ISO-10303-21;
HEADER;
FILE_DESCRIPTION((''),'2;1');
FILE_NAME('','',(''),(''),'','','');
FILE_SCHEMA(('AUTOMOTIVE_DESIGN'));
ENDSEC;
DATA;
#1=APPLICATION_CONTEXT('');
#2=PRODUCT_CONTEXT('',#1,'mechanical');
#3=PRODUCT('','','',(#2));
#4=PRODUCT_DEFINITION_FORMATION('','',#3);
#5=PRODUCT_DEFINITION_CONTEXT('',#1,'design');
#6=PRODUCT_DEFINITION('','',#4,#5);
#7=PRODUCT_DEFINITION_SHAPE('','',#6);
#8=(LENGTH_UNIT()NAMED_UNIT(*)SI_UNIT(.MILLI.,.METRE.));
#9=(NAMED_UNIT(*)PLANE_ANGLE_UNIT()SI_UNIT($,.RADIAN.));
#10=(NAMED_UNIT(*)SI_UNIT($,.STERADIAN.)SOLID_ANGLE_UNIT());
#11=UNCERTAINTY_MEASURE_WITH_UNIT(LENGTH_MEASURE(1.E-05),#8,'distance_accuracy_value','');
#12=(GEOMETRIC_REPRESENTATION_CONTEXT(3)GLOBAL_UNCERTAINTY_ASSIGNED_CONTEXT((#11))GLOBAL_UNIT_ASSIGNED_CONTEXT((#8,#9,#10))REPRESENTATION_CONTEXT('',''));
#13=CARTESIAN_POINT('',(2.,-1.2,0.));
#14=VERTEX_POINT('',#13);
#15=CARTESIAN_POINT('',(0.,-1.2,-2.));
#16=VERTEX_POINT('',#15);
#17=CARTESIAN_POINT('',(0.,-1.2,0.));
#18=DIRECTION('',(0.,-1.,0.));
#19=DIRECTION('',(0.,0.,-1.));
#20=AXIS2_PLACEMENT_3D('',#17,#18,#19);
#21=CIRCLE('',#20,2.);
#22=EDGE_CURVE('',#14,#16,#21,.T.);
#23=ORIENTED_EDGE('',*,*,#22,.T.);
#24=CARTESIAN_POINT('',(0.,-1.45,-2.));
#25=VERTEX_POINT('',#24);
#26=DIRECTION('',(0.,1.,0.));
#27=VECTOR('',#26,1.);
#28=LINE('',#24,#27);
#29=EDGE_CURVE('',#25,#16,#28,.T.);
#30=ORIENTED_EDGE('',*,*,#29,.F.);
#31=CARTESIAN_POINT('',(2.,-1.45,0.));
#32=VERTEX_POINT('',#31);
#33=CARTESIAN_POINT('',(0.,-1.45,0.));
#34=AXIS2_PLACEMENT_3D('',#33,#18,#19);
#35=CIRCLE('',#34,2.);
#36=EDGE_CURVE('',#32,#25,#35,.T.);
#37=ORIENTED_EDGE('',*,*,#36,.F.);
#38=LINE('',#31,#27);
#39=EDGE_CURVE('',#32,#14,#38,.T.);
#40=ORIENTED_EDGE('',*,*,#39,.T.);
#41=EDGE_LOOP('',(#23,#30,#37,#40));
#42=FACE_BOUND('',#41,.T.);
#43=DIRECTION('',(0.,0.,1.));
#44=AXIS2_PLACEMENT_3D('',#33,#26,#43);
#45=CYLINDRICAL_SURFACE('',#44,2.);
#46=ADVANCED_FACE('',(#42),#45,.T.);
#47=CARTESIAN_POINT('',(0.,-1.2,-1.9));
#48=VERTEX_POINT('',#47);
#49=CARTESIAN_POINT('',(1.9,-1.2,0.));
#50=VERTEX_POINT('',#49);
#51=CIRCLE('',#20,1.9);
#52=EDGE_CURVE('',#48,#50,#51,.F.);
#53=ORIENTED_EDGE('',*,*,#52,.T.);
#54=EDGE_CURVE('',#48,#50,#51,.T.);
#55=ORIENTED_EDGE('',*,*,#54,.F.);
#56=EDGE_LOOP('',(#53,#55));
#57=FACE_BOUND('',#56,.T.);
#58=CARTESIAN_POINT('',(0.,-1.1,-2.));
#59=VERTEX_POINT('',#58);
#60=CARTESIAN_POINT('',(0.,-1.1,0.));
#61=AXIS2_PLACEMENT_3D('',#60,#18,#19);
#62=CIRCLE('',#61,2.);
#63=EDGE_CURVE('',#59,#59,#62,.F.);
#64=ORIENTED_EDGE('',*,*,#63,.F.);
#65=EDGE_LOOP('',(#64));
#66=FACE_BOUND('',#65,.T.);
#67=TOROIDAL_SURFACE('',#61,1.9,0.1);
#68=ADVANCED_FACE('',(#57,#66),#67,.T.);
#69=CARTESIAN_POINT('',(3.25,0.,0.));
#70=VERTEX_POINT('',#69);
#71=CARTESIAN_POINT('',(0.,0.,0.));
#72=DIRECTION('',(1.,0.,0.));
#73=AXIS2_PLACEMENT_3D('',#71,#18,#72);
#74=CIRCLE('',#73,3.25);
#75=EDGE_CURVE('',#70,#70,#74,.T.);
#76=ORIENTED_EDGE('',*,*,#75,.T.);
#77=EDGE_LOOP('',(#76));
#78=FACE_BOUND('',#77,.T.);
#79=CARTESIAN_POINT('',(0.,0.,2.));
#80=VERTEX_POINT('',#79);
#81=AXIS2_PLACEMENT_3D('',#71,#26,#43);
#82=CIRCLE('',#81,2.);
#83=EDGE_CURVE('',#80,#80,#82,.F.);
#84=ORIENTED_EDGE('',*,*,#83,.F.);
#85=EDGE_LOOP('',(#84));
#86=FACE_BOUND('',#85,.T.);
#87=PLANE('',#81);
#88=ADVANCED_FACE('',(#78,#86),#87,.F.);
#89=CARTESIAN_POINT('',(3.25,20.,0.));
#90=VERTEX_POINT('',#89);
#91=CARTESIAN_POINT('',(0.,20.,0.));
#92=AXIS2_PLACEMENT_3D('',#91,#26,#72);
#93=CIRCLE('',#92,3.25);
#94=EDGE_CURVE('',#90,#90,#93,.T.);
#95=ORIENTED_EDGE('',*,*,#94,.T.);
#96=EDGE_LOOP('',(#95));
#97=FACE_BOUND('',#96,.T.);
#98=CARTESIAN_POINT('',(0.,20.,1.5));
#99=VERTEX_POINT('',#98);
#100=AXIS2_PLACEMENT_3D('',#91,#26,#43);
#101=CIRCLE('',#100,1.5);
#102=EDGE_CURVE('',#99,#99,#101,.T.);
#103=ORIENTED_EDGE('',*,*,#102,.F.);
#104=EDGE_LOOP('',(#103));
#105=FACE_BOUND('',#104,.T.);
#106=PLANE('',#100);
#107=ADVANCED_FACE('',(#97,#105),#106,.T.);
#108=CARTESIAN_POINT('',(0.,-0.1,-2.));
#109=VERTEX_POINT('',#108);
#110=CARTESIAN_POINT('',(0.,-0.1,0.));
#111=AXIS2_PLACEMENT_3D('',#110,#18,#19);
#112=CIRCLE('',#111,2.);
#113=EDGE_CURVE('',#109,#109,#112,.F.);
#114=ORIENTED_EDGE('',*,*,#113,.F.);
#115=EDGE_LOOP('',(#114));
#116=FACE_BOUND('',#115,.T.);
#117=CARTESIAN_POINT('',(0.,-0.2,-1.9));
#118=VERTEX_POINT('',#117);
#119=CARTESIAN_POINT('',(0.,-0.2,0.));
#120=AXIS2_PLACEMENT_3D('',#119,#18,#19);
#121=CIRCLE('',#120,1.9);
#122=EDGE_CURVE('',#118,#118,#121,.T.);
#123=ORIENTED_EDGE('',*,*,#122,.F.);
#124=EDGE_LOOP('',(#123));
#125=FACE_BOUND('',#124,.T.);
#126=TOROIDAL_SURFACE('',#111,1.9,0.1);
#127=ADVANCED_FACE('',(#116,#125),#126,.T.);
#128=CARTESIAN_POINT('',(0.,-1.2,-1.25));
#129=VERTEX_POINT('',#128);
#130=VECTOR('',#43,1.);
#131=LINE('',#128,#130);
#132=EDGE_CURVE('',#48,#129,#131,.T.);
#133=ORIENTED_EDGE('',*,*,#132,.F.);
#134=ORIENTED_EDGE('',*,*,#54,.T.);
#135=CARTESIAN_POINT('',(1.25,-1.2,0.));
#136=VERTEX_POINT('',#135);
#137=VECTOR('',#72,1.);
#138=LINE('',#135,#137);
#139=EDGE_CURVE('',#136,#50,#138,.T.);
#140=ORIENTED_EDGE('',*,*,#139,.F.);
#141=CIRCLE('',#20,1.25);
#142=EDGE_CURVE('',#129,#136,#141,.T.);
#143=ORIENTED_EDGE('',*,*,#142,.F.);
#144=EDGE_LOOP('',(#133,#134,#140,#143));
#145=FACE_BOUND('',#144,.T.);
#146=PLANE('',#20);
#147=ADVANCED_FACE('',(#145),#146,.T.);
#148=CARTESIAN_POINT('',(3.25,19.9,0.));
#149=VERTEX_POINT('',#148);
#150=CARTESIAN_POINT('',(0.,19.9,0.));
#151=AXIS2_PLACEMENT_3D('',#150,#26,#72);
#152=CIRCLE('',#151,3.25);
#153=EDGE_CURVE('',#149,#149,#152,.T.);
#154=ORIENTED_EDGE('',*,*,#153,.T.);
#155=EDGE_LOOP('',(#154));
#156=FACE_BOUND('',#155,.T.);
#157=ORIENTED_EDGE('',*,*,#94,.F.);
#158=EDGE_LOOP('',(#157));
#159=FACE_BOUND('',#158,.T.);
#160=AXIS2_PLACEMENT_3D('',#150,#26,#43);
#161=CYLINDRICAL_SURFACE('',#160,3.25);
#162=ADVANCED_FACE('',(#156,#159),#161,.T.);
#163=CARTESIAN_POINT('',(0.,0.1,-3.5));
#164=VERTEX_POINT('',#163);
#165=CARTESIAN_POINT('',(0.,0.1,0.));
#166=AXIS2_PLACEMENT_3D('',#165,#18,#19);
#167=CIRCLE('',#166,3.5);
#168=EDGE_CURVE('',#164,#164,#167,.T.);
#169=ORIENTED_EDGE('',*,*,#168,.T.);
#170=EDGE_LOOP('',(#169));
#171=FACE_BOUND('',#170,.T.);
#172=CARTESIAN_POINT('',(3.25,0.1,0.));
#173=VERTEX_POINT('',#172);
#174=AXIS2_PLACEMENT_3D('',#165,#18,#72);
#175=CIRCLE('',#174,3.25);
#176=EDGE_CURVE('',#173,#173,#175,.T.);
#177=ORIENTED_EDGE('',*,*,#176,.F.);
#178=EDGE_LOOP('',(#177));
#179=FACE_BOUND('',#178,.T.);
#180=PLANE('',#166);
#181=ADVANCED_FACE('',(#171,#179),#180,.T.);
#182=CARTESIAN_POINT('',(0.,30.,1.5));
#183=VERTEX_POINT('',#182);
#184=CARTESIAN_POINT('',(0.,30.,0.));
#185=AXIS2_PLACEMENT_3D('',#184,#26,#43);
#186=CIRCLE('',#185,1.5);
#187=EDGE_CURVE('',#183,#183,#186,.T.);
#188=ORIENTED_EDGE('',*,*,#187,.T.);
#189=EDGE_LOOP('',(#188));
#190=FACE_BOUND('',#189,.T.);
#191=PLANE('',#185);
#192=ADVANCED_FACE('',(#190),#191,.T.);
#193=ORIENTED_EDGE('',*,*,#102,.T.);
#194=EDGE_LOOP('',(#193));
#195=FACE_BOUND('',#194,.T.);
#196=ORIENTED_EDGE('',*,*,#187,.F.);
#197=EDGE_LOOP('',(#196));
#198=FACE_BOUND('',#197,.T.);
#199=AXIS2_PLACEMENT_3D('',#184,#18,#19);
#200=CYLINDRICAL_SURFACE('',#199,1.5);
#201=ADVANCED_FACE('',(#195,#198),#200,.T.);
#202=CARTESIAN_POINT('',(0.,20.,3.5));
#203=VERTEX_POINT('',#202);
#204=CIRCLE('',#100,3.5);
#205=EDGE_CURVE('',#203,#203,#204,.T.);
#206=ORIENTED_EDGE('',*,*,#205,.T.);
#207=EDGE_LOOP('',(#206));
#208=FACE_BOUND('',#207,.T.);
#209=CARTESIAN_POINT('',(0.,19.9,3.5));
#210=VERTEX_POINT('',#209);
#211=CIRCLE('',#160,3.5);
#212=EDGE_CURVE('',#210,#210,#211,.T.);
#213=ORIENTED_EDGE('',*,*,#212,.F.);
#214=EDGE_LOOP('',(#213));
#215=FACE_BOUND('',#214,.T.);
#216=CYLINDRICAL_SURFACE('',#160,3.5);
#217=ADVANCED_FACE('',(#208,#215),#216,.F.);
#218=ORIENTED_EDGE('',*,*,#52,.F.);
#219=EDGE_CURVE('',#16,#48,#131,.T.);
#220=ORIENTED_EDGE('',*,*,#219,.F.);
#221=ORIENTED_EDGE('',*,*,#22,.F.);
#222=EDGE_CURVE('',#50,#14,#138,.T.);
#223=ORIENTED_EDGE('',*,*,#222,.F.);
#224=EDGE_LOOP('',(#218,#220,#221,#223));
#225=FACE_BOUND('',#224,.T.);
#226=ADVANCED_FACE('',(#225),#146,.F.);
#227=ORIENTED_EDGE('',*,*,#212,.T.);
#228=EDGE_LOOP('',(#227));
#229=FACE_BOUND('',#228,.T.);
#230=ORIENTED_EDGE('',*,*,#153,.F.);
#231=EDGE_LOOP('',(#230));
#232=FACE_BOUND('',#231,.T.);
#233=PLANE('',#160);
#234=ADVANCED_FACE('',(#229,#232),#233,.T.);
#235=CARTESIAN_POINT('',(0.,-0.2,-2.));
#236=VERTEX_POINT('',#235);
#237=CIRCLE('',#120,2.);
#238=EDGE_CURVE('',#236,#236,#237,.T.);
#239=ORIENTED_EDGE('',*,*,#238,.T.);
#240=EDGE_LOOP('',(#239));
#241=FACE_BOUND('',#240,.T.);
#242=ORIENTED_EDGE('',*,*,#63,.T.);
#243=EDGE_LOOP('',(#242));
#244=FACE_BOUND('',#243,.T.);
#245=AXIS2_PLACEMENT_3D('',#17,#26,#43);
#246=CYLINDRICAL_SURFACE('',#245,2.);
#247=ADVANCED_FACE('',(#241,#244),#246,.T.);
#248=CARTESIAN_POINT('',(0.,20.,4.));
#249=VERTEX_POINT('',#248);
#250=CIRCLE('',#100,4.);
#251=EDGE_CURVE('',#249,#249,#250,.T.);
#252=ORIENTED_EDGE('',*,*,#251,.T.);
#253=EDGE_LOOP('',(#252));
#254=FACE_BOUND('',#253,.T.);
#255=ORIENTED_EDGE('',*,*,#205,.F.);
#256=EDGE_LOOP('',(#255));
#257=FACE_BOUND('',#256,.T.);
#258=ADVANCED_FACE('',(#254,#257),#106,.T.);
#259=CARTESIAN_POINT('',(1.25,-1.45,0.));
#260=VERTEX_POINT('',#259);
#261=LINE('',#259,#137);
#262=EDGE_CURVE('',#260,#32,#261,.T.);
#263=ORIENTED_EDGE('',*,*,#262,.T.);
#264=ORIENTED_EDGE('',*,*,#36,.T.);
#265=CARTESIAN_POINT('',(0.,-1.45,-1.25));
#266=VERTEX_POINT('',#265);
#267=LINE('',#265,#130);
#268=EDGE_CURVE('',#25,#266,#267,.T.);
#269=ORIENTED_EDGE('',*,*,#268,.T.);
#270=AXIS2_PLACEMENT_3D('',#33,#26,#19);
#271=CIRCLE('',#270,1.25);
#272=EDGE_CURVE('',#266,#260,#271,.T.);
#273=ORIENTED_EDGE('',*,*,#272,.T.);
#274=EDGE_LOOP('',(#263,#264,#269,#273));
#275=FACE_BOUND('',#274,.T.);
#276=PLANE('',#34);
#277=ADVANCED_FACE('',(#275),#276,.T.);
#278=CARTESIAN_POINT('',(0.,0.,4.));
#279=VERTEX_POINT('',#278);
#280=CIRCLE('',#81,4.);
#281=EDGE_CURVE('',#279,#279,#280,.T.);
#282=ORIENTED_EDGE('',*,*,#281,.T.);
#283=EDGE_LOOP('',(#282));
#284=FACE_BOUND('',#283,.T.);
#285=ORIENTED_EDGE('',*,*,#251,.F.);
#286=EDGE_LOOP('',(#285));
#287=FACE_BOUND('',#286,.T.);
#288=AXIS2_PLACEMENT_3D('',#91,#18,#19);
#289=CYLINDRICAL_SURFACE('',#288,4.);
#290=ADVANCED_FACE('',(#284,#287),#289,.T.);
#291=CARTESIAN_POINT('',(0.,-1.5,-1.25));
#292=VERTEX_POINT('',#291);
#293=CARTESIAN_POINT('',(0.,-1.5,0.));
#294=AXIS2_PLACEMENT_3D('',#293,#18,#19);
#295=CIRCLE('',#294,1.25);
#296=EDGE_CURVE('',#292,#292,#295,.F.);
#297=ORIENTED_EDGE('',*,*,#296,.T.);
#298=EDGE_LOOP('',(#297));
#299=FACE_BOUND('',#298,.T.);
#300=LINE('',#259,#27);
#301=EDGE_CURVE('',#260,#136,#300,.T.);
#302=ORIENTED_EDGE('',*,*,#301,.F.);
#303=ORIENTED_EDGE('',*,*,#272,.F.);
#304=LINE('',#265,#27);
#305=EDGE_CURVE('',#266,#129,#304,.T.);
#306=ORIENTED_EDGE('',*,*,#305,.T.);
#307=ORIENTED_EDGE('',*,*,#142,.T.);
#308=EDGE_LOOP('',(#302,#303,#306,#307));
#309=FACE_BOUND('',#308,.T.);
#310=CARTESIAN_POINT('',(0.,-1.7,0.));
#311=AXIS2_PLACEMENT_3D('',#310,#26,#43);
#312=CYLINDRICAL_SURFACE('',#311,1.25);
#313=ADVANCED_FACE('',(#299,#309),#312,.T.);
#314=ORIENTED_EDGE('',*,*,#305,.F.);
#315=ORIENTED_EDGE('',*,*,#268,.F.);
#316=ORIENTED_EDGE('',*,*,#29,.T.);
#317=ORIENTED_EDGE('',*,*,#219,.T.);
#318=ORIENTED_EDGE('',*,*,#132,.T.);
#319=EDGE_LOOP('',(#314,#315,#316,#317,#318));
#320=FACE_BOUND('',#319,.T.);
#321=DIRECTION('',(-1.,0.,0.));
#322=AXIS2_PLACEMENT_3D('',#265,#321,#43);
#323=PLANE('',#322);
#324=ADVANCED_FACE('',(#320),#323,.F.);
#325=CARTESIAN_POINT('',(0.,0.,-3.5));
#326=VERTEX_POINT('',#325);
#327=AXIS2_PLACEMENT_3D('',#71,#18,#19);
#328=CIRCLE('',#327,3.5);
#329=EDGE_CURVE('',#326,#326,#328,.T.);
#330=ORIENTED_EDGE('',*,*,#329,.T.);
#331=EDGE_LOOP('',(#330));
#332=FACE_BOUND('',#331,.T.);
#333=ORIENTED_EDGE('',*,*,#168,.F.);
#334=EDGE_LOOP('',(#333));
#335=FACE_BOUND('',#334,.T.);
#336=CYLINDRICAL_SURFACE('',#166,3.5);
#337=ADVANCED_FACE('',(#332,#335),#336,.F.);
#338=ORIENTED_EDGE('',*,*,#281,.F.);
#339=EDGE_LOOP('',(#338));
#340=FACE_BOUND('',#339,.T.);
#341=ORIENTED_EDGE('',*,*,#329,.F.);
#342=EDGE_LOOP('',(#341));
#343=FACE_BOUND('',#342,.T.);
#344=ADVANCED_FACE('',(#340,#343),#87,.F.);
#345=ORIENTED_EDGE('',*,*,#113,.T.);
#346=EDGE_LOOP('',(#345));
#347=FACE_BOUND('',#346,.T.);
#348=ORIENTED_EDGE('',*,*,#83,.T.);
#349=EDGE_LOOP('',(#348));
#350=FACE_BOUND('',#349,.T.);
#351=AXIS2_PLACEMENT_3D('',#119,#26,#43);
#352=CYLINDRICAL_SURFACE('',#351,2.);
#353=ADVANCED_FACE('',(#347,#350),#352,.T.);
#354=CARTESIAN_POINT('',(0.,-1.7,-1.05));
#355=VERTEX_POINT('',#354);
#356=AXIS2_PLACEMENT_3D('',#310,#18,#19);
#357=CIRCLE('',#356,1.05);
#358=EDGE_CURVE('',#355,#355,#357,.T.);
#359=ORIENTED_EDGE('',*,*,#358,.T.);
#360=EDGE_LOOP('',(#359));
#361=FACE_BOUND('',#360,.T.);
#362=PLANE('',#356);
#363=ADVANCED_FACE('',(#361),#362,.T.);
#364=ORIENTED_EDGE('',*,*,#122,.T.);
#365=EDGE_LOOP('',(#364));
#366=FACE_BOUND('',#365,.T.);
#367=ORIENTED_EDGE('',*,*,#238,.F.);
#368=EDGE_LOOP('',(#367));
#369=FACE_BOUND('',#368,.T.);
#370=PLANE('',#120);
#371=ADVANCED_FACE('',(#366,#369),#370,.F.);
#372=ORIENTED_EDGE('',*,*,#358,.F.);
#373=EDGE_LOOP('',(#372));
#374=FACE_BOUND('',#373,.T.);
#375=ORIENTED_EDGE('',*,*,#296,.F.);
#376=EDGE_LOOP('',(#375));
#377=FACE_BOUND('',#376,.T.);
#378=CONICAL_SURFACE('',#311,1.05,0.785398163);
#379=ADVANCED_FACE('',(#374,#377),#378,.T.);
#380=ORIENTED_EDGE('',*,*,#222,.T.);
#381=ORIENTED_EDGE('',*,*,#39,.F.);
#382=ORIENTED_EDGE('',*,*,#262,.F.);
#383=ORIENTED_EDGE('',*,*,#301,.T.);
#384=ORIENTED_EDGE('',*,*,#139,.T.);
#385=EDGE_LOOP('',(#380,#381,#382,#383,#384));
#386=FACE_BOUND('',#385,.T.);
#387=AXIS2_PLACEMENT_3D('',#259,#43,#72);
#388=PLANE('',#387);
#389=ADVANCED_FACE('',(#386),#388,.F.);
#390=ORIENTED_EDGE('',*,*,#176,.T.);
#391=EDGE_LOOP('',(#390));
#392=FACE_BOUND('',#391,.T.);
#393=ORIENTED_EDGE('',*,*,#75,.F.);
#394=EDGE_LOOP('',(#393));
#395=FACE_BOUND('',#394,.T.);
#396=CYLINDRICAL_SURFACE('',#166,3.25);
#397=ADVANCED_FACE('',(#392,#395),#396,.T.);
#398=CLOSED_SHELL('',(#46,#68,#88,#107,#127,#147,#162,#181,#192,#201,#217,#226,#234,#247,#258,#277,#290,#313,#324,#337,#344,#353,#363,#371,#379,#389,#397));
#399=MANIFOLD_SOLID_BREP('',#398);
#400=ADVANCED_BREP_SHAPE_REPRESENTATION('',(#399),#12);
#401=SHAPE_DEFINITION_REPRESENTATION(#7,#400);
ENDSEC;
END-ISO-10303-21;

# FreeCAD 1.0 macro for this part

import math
import FreeCAD as App
import Part
import Sketcher

V = App.Vector
Q = App.Units.Quantity


def edges_at(feature, points):
    """Names of the edges that pass closest to the given points."""
    edges = feature.Shape.Edges
    near = lambda p: min(range(len(edges)), key=lambda i: edges[i].distToShape(Part.Vertex(*p))[0])
    return sorted({f"Edge{near(p) + 1}" for p in points})

doc = App.newDocument("Part")
body = doc.addObject("PartDesign::Body", "Body")

# Sketch on XZ plane
sketch1 = body.newObject("Sketcher::SketchObject", "Sketch")
sketch1.AttachmentSupport = (doc.getObject("XZ_Plane"), [""])
sketch1.MapMode = "FlatFace"
sketch1.addGeometry(Part.Circle(V(0, 0, 0), V(0, 0, 1), 4), False)
sketch1.addConstraint([
    Sketcher.Constraint("Coincident", 0, 3, -1, 1),
    Sketcher.Constraint("Diameter", 0, Q("8 mm")),
])
pad1 = body.newObject("PartDesign::Pad", "Pad")
pad1.Profile = sketch1
pad1.Length = 20
pad1.Reversed = True

# Sketch on XZ plane
sketch2 = body.newObject("Sketcher::SketchObject", "Sketch001")
sketch2.AttachmentSupport = (doc.getObject("XZ_Plane"), [""])
sketch2.MapMode = "FlatFace"
sketch2.addGeometry([
    Part.Circle(V(0, 0, 0), V(0, 0, 1), 3.5),
    Part.Circle(V(0, 0, 0), V(0, 0, 1), 3.2),
], False)
sketch2.addConstraint([
    Sketcher.Constraint("Coincident", 0, 3, -1, 1),
    Sketcher.Constraint("Coincident", 1, 3, -1, 1),
    Sketcher.Constraint("Diameter", 0, Q("7 mm")),
    Sketcher.Constraint("Diameter", 1, Q("6.5 mm")),
])
pocket1 = body.newObject("PartDesign::Pocket", "Pocket")
pocket1.Profile = sketch2
pocket1.Length = 0.1

# Sketch on XZ plane
sketch3 = body.newObject("Sketcher::SketchObject", "Sketch002")
sketch3.AttachmentSupport = (doc.getObject("XZ_Plane"), [""])
sketch3.MapMode = "FlatFace"
sketch3.addGeometry(Part.Circle(V(0, 0, 0), V(0, 0, 1), 2), False)
sketch3.addConstraint([
    Sketcher.Constraint("Coincident", 0, 3, -1, 1),
    Sketcher.Constraint("Diameter", 0, Q("4 mm")),
])
pad2 = body.newObject("PartDesign::Pad", "Pad001")
pad2.Profile = sketch3
pad2.Length = 0.2
doc.recompute()

fillet = body.newObject("PartDesign::Fillet", "Fillet")
fillet.Base = (pad2, edges_at(pad2, [(-2, -0.2, 0)]))
fillet.Radius = 0.1

# Sketch on XZ plane
sketch4 = body.newObject("Sketcher::SketchObject", "Sketch003")
sketch4.AttachmentSupport = (doc.getObject("XZ_Plane"), [""])
sketch4.MapMode = "FlatFace"
sketch4.AttachmentOffset = App.Placement(V(0, 0, 0.2), App.Rotation())
sketch4.addGeometry(Part.Circle(V(0, 0, 0), V(0, 0, 1), 2), False)
sketch4.addConstraint([
    Sketcher.Constraint("Coincident", 0, 3, -1, 1),
    Sketcher.Constraint("Diameter", 0, Q("4 mm")),
])
pad3 = body.newObject("PartDesign::Pad", "Pad002")
pad3.Profile = sketch4
pad3.Length = 1
doc.recompute()

fillet2 = body.newObject("PartDesign::Fillet", "Fillet001")
fillet2.Base = (pad3, edges_at(pad3, [(-2, -1.2, 0)]))
fillet2.Radius = 0.1

# Sketch on XZ plane
sketch5 = body.newObject("Sketcher::SketchObject", "Sketch004")
sketch5.AttachmentSupport = (doc.getObject("XZ_Plane"), [""])
sketch5.MapMode = "FlatFace"
sketch5.AttachmentOffset = App.Placement(V(0, 0, 1.2), App.Rotation())
sketch5.addGeometry(Part.Circle(V(0, 0, 0), V(0, 0, 1), 1.2), False)
sketch5.addConstraint([
    Sketcher.Constraint("Coincident", 0, 3, -1, 1),
    Sketcher.Constraint("Diameter", 0, Q("2.5 mm")),
])
pad4 = body.newObject("PartDesign::Pad", "Pad003")
pad4.Profile = sketch5
pad4.Length = 0.5
doc.recompute()

chamfer = body.newObject("PartDesign::Chamfer", "Chamfer")
chamfer.Base = (pad4, edges_at(pad4, [(-1.25, -1.7, 0)]))
chamfer.Size = 0.2

# Sketch on XZ plane
sketch6 = body.newObject("Sketcher::SketchObject", "Sketch005")
sketch6.AttachmentSupport = (doc.getObject("XZ_Plane"), [""])
sketch6.MapMode = "FlatFace"
sketch6.AttachmentOffset = App.Placement(V(0, 0, 1.2), App.Rotation())
sketch6.addGeometry([
    Part.LineSegment(V(0, -2, 0), V(0, -1.2, 0)),
    Part.ArcOfCircle(Part.Circle(V(0, 0, 0), V(0, 0, 1), 1.2), math.radians(0), math.radians(270)),
    Part.LineSegment(V(1.2, 0, 0), V(2, 0, 0)),
    Part.ArcOfCircle(Part.Circle(V(0, 0, 0), V(0, 0, 1), 2), math.radians(0), math.radians(270)),
], False)
sketch6.addConstraint([
    Sketcher.Constraint("Coincident", 0, 2, 1, 2),
    Sketcher.Constraint("Coincident", 1, 1, 2, 1),
    Sketcher.Constraint("Coincident", 2, 2, 3, 1),
    Sketcher.Constraint("Coincident", 3, 2, 0, 1),
    Sketcher.Constraint("Vertical", 0),
    Sketcher.Constraint("Horizontal", 2),
    Sketcher.Constraint("Coincident", 1, 3, -1, 1),
    Sketcher.Constraint("Coincident", 3, 3, -1, 1),
    Sketcher.Constraint("PointOnObject", 0, 2, -2),
    Sketcher.Constraint("PointOnObject", 1, 1, -1),
    Sketcher.Constraint("Radius", 3, Q("2 mm")),
    Sketcher.Constraint("Radius", 1, Q("1.25 mm")),
])
pad5 = body.newObject("PartDesign::Pad", "Pad004")
pad5.Profile = sketch6
pad5.Length = 0.25

# Sketch on XZ plane
sketch7 = body.newObject("Sketcher::SketchObject", "Sketch006")
sketch7.AttachmentSupport = (doc.getObject("XZ_Plane"), [""])
sketch7.MapMode = "FlatFace"
sketch7.AttachmentOffset = App.Placement(V(0, 0, -20), App.Rotation())
sketch7.addGeometry(Part.Circle(V(0, 0, 0), V(0, 0, 1), 1.5), False)
sketch7.addConstraint([
    Sketcher.Constraint("Coincident", 0, 3, -1, 1),
    Sketcher.Constraint("Diameter", 0, Q("3 mm")),
])
pad6 = body.newObject("PartDesign::Pad", "Pad005")
pad6.Profile = sketch7
pad6.Length = 10
pad6.Reversed = True

# Sketch on XZ plane
sketch8 = body.newObject("Sketcher::SketchObject", "Sketch007")
sketch8.AttachmentSupport = (doc.getObject("XZ_Plane"), [""])
sketch8.MapMode = "FlatFace"
sketch8.AttachmentOffset = App.Placement(V(0, 0, -20), App.Rotation())
sketch8.addGeometry([
    Part.Circle(V(0, 0, 0), V(0, 0, 1), 3.5),
    Part.Circle(V(0, 0, 0), V(0, 0, 1), 3.2),
], False)
sketch8.addConstraint([
    Sketcher.Constraint("Coincident", 0, 3, -1, 1),
    Sketcher.Constraint("Coincident", 1, 3, -1, 1),
    Sketcher.Constraint("Diameter", 0, Q("7 mm")),
    Sketcher.Constraint("Diameter", 1, Q("6.5 mm")),
])
pocket2 = body.newObject("PartDesign::Pocket", "Pocket001")
pocket2.Profile = sketch8
pocket2.Length = 0.1
pocket2.Reversed = True

doc.recompute()
